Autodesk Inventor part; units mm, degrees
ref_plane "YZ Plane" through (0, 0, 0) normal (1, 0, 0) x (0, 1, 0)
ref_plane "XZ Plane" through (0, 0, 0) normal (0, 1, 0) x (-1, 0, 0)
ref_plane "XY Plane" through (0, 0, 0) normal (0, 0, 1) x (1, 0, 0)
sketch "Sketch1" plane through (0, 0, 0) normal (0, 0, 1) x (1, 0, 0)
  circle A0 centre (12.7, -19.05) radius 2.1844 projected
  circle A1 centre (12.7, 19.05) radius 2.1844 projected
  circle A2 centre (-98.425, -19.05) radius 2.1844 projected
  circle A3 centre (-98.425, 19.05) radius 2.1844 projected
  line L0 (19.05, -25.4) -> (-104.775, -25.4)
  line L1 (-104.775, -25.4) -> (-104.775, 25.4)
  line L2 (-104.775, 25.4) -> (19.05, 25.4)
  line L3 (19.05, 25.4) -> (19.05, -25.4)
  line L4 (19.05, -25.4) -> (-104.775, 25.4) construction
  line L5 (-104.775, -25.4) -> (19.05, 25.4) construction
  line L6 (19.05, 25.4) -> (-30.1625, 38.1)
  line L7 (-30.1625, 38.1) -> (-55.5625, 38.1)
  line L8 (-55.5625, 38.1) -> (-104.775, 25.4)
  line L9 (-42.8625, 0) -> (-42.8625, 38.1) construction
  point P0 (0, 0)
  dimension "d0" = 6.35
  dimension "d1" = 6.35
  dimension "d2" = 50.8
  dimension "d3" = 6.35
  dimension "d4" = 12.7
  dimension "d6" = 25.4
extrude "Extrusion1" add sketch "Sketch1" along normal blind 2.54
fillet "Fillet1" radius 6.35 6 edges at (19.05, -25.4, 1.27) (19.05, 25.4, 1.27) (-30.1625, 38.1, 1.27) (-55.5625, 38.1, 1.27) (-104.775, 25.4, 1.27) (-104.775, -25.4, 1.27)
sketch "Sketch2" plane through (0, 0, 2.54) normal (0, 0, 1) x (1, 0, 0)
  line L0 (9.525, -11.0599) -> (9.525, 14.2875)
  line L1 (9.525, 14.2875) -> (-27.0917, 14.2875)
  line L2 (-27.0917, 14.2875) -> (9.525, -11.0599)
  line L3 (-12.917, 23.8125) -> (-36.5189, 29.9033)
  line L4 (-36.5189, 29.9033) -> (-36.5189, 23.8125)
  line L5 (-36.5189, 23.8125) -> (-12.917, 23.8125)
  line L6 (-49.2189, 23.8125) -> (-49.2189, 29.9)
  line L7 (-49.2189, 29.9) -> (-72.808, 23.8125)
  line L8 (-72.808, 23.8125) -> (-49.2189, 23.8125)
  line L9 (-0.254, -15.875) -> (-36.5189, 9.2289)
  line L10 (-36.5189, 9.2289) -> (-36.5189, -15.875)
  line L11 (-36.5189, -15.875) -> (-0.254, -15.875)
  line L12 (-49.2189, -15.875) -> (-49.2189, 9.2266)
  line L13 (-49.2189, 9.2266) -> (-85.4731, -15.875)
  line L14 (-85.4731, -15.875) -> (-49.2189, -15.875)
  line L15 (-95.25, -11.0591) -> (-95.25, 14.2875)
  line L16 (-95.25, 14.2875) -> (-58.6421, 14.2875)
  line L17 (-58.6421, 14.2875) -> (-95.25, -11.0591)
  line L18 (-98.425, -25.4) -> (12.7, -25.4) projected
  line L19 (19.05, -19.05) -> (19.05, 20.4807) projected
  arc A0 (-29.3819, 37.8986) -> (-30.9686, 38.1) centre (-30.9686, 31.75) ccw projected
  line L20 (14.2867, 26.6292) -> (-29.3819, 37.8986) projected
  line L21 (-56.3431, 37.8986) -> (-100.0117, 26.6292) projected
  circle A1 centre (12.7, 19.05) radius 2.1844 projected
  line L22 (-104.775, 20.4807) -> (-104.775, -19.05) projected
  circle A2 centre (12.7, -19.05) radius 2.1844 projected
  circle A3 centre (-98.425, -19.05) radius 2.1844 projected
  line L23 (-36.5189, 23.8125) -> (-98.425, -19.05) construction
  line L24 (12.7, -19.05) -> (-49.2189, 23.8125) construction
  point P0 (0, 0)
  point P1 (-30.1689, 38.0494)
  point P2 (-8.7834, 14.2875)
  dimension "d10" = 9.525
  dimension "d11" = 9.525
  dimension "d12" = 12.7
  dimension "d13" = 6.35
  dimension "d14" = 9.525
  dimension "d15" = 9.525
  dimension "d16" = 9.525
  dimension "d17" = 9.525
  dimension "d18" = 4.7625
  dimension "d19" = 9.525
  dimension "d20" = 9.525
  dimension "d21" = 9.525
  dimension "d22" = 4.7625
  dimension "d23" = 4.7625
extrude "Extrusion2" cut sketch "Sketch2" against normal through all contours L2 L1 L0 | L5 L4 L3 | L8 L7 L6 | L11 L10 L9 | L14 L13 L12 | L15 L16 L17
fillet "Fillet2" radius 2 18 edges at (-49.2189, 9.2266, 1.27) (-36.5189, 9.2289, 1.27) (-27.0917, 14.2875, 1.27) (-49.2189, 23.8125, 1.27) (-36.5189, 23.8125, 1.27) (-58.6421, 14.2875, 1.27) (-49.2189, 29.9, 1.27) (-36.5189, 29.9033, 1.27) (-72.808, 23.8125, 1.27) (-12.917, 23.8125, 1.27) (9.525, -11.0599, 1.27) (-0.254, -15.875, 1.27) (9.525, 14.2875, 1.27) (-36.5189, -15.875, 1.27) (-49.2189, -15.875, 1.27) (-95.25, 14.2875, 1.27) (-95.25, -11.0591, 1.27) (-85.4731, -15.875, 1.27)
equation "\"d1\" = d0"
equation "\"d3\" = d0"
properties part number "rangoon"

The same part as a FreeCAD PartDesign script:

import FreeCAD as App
import Part
import Sketcher

V = App.Vector
Q = App.Units.Quantity


def edges_at(feature, points):
    """Names of the edges that pass closest to the given points."""
    edges = feature.Shape.Edges
    near = lambda p: min(range(len(edges)), key=lambda i: edges[i].distToShape(Part.Vertex(*p))[0])
    return sorted({f"Edge{near(p) + 1}" for p in points})

doc = App.newDocument("Part")
params = doc.addObject("Spreadsheet::Sheet", "Params")
for row, (alias, value) in enumerate([
    ("sketch1_width", "1 in"),
    ("sketch1_height", "2 in"),
    ("sketch1_diameter", "0.172 in"),
    ("sketch1_width2", "4.875 in"),
    ("pad1_length", "0.1 in"),
    ("fillet_radius", "0.25 in"),
    ("sketch2_length", "1.753 in"),
    ("fillet2_radius", "2 mm"),
], start=1):
    params.set(f"A{row}", alias)
    params.set(f"B{row}", "=" + value)
    params.setAlias(f"B{row}", alias)

body = doc.addObject("PartDesign::Body", "Body")

sketch1 = body.newObject("Sketcher::SketchObject", "Sketch")
sketch1.AttachmentSupport = (doc.getObject("XY_Plane"), [""])
sketch1.MapMode = "FlatFace"
sketch1.addGeometry([
    Part.LineSegment(V(-104.775, -25.4, 0), V(19.05, -25.4, 0)),
    Part.LineSegment(V(19.05, -25.4, 0), V(19.05, 25.4, 0)),
    Part.LineSegment(V(19.05, 25.4, 0), V(-30.1625, 38.1, 0)),
    Part.LineSegment(V(-30.1625, 38.1, 0), V(-55.5625, 38.1, 0)),
    Part.LineSegment(V(-55.5625, 38.1, 0), V(-104.775, 25.4, 0)),
    Part.LineSegment(V(-104.775, 25.4, 0), V(-104.775, -25.4, 0)),
    Part.Circle(V(-98.425, -19.05, 0), V(0, 0, 1), 2.1844),
    Part.Circle(V(12.7, -19.05, 0), V(0, 0, 1), 2.1844),
    Part.Circle(V(-98.425, 19.05, 0), V(0, 0, 1), 2.1844),
    Part.Circle(V(12.7, 19.05, 0), V(0, 0, 1), 2.1844),
], False)
sketch1.addConstraint([
    Sketcher.Constraint("Coincident", 0, 2, 1, 1),
    Sketcher.Constraint("Coincident", 1, 2, 2, 1),
    Sketcher.Constraint("Coincident", 2, 2, 3, 1),
    Sketcher.Constraint("Coincident", 3, 2, 4, 1),
    Sketcher.Constraint("Coincident", 4, 2, 5, 1),
    Sketcher.Constraint("Coincident", 5, 2, 0, 1),
    Sketcher.Constraint("Horizontal", 0),
    Sketcher.Constraint("Vertical", 1),
    Sketcher.Constraint("Horizontal", 3),
    Sketcher.Constraint("Vertical", 5),
    Sketcher.Constraint("Equal", 6, 7),
    Sketcher.Constraint("Equal", 7, 8),
    Sketcher.Constraint("Equal", 8, 9),
    Sketcher.Constraint("Symmetric", 6, 3, 8, 3, -1),
    Sketcher.Constraint("Symmetric", 7, 3, 9, 3, -1),
    Sketcher.Constraint("Horizontal", 6, 3, 7, 3),
    Sketcher.Constraint("Horizontal", 1, 2, 4, 2),
    Sketcher.Constraint("Equal", 2, 4),
    Sketcher.Constraint("DistanceX", 3, 2, 3, 1, Q("1 in")),
    Sketcher.Constraint("DistanceY", 1, 1, 1, 2, Q("2 in")),
    Sketcher.Constraint("DistanceY", 0, 2, -1, 1, Q("1 in")),
    Sketcher.Constraint("DistanceX", -1, 1, 7, 3, Q("0.5 in")),
    Sketcher.Constraint("DistanceY", 1, 2, 2, 2, Q("0.5 in")),
    Sketcher.Constraint("DistanceX", 7, 3, 0, 2, Q("0.25 in")),
    Sketcher.Constraint("DistanceY", 0, 2, 7, 3, Q("0.25 in")),
    Sketcher.Constraint("DistanceX", 4, 2, 8, 3, Q("0.25 in")),
    Sketcher.Constraint("Diameter", 6, Q("0.172 in")),
    Sketcher.Constraint("DistanceX", 0, 1, 0, 2, Q("4.875 in")),
])
sketch1.setExpression("Constraints[18]", "Params.sketch1_width")
sketch1.setExpression("Constraints[19]", "Params.sketch1_height")
sketch1.setExpression("Constraints[26]", "Params.sketch1_diameter")
sketch1.setExpression("Constraints[27]", "Params.sketch1_width2")
pad1 = body.newObject("PartDesign::Pad", "Pad")
pad1.Profile = sketch1
pad1.setExpression("Length", "Params.pad1_length")
doc.recompute()

fillet = body.newObject("PartDesign::Fillet", "Fillet")
fillet.Base = (pad1, edges_at(pad1, [
    (19.05, -25.4, 1.27),
    (19.05, 25.4, 1.27),
    (-30.163, 38.1, 1.27),
    (-55.562, 38.1, 1.27),
    (-104.775, 25.4, 1.27),
    (-104.775, -25.4, 1.27),
]))
fillet.setExpression("Radius", "Params.fillet_radius")

sketch2 = body.newObject("Sketcher::SketchObject", "Sketch001")
sketch2.AttachmentSupport = (doc.getObject("XY_Plane"), [""])
sketch2.MapMode = "FlatFace"
sketch2.AttachmentOffset = App.Placement(V(0, 0, 0.1 * 25.4), App.Rotation())
sketch2.addGeometry([
    Part.LineSegment(V(-27.0917, 14.2875, 0), V(9.525, -11.0599, 0)),
    Part.LineSegment(V(9.525, -11.0599, 0), V(9.525, 14.2875, 0)),
    Part.LineSegment(V(9.525, 14.2875, 0), V(-27.0917, 14.2875, 0)),
    Part.LineSegment(V(-36.5189, 23.8125, 0), V(-12.917, 23.8125, 0)),
    Part.LineSegment(V(-12.917, 23.8125, 0), V(-36.5189, 29.9033, 0)),
    Part.LineSegment(V(-36.5189, 29.9033, 0), V(-36.5189, 23.8125, 0)),
    Part.LineSegment(V(-72.808, 23.8125, 0), V(-49.2189, 23.8125, 0)),
    Part.LineSegment(V(-49.2189, 23.8125, 0), V(-49.2189, 29.9, 0)),
    Part.LineSegment(V(-49.2189, 29.9, 0), V(-72.808, 23.8125, 0)),
    Part.LineSegment(V(-36.5189, -15.875, 0), V(-0.254, -15.875, 0)),
    Part.LineSegment(V(-0.254, -15.875, 0), V(-36.5189, 9.2289, 0)),
    Part.LineSegment(V(-36.5189, 9.2289, 0), V(-36.5189, -15.875, 0)),
    Part.LineSegment(V(-85.4731, -15.875, 0), V(-49.2189, -15.875, 0)),
    Part.LineSegment(V(-49.2189, -15.875, 0), V(-49.2189, 9.2266, 0)),
    Part.LineSegment(V(-49.2189, 9.2266, 0), V(-85.4731, -15.875, 0)),
    Part.LineSegment(V(-95.25, 14.2875, 0), V(-95.25, -11.0591, 0)),
    Part.LineSegment(V(-95.25, -11.0591, 0), V(-58.6421, 14.2875, 0)),
    Part.LineSegment(V(-58.6421, 14.2875, 0), V(-95.25, 14.2875, 0)),
], False)
sketch2.addConstraint([
    Sketcher.Constraint("Coincident", 0, 2, 1, 1),
    Sketcher.Constraint("Coincident", 1, 2, 2, 1),
    Sketcher.Constraint("Coincident", 2, 2, 0, 1),
    Sketcher.Constraint("Coincident", 3, 2, 4, 1),
    Sketcher.Constraint("Coincident", 4, 2, 5, 1),
    Sketcher.Constraint("Coincident", 5, 2, 3, 1),
    Sketcher.Constraint("Coincident", 6, 2, 7, 1),
    Sketcher.Constraint("Coincident", 7, 2, 8, 1),
    Sketcher.Constraint("Coincident", 8, 2, 6, 1),
    Sketcher.Constraint("Coincident", 9, 2, 10, 1),
    Sketcher.Constraint("Coincident", 10, 2, 11, 1),
    Sketcher.Constraint("Coincident", 11, 2, 9, 1),
    Sketcher.Constraint("Coincident", 12, 2, 13, 1),
    Sketcher.Constraint("Coincident", 13, 2, 14, 1),
    Sketcher.Constraint("Coincident", 14, 2, 12, 1),
    Sketcher.Constraint("Coincident", 15, 2, 16, 1),
    Sketcher.Constraint("Coincident", 16, 2, 17, 1),
    Sketcher.Constraint("Coincident", 17, 2, 15, 1),
    Sketcher.Constraint("Vertical", 1),
    Sketcher.Constraint("Horizontal", 2),
    Sketcher.Constraint("Horizontal", 3),
    Sketcher.Constraint("Vertical", 5),
    Sketcher.Constraint("Horizontal", 6),
    Sketcher.Constraint("Vertical", 7),
    Sketcher.Constraint("Horizontal", 9),
    Sketcher.Constraint("Vertical", 11),
    Sketcher.Constraint("Horizontal", 12),
    Sketcher.Constraint("Vertical", 13),
    Sketcher.Constraint("Vertical", 15),
    Sketcher.Constraint("Horizontal", 17),
    Sketcher.Constraint("Parallel", 0, 10),
    Sketcher.Constraint("Parallel", 14, 16),
    Sketcher.Constraint("Horizontal", 5, 2, 6, 2),
    Sketcher.Constraint("Horizontal", 11, 2, 12, 2),
    Sketcher.Constraint("Horizontal", 2, 2, 16, 2),
    Sketcher.Constraint("Vertical", 5, 2, 10, 2),
    Sketcher.Constraint("Vertical", 7, 2, 12, 2),
    Sketcher.Constraint("DistanceX", 6, 2, 5, 2, Q("0.5 in")),
    Sketcher.Constraint("DistanceX", -1, 1, 0, 2, Q("0.375 in")),
    Sketcher.Constraint("DistanceY", 2, 2, 3, 2, Q("0.375 in")),
    Sketcher.Constraint("DistanceX", 9, 2, -1, 1, Q("0.01 in")),
    Sketcher.Constraint("DistanceX", 15, 2, -1, 1, Q("3.75 in")),
    Sketcher.Constraint("Angle", 4, Q("165.5297 deg")),
    Sketcher.Constraint("Angle", 8, Q("-165.5297 deg")),
    Sketcher.Constraint("Distance", 16, Q("1.753 in")),
    Sketcher.Constraint("DistanceX", 2, 2, 2, 1, Q("1.4416 in")),
    Sketcher.Constraint("DistanceX", 3, 1, 3, 2, Q("0.9292 in")),
    Sketcher.Constraint("DistanceX", 6, 1, 6, 2, Q("0.9287 in")),
    Sketcher.Constraint("DistanceY", 15, 2, 15, 1, Q("0.9979 in")),
    Sketcher.Constraint("DistanceY", -1, 1, 1, 2, Q("0.5625 in")),
    Sketcher.Constraint("DistanceY", 9, 2, -1, 1, Q("0.625 in")),
    Sketcher.Constraint("DistanceX", 16, 2, 13, 2, Q("0.371 in")),
    Sketcher.Constraint("Distance", 0, Q("1.7533 in")),
    Sketcher.Constraint("DistanceX", 12, 1, 12, 2, 36.2542),
])
sketch2.setExpression("Constraints[44]", "Params.sketch2_length")
pocket1 = body.newObject("PartDesign::Pocket", "Pocket")
pocket1.Profile = sketch2
pocket1.Type = "ThroughAll"
doc.recompute()

fillet2 = body.newObject("PartDesign::Fillet", "Fillet001")
fillet2.Base = (pocket1, edges_at(pocket1, [
    (-49.219, 9.227, 1.27),
    (-36.519, 9.229, 1.27),
    (-27.092, 14.287, 1.27),
    (-49.219, 23.812, 1.27),
    (-36.519, 23.812, 1.27),
    (-58.642, 14.287, 1.27),
    (-49.219, 29.9, 1.27),
    (-36.519, 29.903, 1.27),
    (-72.808, 23.812, 1.27),
    (-12.917, 23.812, 1.27),
    (9.525, -11.06, 1.27),
    (-0.254, -15.875, 1.27),
    (9.525, 14.287, 1.27),
    (-36.519, -15.875, 1.27),
    (-49.219, -15.875, 1.27),
    (-95.25, 14.287, 1.27),
    (-95.25, -11.059, 1.27),
    (-85.473, -15.875, 1.27),
]))
fillet2.setExpression("Radius", "Params.fillet2_radius")

doc.recompute()
